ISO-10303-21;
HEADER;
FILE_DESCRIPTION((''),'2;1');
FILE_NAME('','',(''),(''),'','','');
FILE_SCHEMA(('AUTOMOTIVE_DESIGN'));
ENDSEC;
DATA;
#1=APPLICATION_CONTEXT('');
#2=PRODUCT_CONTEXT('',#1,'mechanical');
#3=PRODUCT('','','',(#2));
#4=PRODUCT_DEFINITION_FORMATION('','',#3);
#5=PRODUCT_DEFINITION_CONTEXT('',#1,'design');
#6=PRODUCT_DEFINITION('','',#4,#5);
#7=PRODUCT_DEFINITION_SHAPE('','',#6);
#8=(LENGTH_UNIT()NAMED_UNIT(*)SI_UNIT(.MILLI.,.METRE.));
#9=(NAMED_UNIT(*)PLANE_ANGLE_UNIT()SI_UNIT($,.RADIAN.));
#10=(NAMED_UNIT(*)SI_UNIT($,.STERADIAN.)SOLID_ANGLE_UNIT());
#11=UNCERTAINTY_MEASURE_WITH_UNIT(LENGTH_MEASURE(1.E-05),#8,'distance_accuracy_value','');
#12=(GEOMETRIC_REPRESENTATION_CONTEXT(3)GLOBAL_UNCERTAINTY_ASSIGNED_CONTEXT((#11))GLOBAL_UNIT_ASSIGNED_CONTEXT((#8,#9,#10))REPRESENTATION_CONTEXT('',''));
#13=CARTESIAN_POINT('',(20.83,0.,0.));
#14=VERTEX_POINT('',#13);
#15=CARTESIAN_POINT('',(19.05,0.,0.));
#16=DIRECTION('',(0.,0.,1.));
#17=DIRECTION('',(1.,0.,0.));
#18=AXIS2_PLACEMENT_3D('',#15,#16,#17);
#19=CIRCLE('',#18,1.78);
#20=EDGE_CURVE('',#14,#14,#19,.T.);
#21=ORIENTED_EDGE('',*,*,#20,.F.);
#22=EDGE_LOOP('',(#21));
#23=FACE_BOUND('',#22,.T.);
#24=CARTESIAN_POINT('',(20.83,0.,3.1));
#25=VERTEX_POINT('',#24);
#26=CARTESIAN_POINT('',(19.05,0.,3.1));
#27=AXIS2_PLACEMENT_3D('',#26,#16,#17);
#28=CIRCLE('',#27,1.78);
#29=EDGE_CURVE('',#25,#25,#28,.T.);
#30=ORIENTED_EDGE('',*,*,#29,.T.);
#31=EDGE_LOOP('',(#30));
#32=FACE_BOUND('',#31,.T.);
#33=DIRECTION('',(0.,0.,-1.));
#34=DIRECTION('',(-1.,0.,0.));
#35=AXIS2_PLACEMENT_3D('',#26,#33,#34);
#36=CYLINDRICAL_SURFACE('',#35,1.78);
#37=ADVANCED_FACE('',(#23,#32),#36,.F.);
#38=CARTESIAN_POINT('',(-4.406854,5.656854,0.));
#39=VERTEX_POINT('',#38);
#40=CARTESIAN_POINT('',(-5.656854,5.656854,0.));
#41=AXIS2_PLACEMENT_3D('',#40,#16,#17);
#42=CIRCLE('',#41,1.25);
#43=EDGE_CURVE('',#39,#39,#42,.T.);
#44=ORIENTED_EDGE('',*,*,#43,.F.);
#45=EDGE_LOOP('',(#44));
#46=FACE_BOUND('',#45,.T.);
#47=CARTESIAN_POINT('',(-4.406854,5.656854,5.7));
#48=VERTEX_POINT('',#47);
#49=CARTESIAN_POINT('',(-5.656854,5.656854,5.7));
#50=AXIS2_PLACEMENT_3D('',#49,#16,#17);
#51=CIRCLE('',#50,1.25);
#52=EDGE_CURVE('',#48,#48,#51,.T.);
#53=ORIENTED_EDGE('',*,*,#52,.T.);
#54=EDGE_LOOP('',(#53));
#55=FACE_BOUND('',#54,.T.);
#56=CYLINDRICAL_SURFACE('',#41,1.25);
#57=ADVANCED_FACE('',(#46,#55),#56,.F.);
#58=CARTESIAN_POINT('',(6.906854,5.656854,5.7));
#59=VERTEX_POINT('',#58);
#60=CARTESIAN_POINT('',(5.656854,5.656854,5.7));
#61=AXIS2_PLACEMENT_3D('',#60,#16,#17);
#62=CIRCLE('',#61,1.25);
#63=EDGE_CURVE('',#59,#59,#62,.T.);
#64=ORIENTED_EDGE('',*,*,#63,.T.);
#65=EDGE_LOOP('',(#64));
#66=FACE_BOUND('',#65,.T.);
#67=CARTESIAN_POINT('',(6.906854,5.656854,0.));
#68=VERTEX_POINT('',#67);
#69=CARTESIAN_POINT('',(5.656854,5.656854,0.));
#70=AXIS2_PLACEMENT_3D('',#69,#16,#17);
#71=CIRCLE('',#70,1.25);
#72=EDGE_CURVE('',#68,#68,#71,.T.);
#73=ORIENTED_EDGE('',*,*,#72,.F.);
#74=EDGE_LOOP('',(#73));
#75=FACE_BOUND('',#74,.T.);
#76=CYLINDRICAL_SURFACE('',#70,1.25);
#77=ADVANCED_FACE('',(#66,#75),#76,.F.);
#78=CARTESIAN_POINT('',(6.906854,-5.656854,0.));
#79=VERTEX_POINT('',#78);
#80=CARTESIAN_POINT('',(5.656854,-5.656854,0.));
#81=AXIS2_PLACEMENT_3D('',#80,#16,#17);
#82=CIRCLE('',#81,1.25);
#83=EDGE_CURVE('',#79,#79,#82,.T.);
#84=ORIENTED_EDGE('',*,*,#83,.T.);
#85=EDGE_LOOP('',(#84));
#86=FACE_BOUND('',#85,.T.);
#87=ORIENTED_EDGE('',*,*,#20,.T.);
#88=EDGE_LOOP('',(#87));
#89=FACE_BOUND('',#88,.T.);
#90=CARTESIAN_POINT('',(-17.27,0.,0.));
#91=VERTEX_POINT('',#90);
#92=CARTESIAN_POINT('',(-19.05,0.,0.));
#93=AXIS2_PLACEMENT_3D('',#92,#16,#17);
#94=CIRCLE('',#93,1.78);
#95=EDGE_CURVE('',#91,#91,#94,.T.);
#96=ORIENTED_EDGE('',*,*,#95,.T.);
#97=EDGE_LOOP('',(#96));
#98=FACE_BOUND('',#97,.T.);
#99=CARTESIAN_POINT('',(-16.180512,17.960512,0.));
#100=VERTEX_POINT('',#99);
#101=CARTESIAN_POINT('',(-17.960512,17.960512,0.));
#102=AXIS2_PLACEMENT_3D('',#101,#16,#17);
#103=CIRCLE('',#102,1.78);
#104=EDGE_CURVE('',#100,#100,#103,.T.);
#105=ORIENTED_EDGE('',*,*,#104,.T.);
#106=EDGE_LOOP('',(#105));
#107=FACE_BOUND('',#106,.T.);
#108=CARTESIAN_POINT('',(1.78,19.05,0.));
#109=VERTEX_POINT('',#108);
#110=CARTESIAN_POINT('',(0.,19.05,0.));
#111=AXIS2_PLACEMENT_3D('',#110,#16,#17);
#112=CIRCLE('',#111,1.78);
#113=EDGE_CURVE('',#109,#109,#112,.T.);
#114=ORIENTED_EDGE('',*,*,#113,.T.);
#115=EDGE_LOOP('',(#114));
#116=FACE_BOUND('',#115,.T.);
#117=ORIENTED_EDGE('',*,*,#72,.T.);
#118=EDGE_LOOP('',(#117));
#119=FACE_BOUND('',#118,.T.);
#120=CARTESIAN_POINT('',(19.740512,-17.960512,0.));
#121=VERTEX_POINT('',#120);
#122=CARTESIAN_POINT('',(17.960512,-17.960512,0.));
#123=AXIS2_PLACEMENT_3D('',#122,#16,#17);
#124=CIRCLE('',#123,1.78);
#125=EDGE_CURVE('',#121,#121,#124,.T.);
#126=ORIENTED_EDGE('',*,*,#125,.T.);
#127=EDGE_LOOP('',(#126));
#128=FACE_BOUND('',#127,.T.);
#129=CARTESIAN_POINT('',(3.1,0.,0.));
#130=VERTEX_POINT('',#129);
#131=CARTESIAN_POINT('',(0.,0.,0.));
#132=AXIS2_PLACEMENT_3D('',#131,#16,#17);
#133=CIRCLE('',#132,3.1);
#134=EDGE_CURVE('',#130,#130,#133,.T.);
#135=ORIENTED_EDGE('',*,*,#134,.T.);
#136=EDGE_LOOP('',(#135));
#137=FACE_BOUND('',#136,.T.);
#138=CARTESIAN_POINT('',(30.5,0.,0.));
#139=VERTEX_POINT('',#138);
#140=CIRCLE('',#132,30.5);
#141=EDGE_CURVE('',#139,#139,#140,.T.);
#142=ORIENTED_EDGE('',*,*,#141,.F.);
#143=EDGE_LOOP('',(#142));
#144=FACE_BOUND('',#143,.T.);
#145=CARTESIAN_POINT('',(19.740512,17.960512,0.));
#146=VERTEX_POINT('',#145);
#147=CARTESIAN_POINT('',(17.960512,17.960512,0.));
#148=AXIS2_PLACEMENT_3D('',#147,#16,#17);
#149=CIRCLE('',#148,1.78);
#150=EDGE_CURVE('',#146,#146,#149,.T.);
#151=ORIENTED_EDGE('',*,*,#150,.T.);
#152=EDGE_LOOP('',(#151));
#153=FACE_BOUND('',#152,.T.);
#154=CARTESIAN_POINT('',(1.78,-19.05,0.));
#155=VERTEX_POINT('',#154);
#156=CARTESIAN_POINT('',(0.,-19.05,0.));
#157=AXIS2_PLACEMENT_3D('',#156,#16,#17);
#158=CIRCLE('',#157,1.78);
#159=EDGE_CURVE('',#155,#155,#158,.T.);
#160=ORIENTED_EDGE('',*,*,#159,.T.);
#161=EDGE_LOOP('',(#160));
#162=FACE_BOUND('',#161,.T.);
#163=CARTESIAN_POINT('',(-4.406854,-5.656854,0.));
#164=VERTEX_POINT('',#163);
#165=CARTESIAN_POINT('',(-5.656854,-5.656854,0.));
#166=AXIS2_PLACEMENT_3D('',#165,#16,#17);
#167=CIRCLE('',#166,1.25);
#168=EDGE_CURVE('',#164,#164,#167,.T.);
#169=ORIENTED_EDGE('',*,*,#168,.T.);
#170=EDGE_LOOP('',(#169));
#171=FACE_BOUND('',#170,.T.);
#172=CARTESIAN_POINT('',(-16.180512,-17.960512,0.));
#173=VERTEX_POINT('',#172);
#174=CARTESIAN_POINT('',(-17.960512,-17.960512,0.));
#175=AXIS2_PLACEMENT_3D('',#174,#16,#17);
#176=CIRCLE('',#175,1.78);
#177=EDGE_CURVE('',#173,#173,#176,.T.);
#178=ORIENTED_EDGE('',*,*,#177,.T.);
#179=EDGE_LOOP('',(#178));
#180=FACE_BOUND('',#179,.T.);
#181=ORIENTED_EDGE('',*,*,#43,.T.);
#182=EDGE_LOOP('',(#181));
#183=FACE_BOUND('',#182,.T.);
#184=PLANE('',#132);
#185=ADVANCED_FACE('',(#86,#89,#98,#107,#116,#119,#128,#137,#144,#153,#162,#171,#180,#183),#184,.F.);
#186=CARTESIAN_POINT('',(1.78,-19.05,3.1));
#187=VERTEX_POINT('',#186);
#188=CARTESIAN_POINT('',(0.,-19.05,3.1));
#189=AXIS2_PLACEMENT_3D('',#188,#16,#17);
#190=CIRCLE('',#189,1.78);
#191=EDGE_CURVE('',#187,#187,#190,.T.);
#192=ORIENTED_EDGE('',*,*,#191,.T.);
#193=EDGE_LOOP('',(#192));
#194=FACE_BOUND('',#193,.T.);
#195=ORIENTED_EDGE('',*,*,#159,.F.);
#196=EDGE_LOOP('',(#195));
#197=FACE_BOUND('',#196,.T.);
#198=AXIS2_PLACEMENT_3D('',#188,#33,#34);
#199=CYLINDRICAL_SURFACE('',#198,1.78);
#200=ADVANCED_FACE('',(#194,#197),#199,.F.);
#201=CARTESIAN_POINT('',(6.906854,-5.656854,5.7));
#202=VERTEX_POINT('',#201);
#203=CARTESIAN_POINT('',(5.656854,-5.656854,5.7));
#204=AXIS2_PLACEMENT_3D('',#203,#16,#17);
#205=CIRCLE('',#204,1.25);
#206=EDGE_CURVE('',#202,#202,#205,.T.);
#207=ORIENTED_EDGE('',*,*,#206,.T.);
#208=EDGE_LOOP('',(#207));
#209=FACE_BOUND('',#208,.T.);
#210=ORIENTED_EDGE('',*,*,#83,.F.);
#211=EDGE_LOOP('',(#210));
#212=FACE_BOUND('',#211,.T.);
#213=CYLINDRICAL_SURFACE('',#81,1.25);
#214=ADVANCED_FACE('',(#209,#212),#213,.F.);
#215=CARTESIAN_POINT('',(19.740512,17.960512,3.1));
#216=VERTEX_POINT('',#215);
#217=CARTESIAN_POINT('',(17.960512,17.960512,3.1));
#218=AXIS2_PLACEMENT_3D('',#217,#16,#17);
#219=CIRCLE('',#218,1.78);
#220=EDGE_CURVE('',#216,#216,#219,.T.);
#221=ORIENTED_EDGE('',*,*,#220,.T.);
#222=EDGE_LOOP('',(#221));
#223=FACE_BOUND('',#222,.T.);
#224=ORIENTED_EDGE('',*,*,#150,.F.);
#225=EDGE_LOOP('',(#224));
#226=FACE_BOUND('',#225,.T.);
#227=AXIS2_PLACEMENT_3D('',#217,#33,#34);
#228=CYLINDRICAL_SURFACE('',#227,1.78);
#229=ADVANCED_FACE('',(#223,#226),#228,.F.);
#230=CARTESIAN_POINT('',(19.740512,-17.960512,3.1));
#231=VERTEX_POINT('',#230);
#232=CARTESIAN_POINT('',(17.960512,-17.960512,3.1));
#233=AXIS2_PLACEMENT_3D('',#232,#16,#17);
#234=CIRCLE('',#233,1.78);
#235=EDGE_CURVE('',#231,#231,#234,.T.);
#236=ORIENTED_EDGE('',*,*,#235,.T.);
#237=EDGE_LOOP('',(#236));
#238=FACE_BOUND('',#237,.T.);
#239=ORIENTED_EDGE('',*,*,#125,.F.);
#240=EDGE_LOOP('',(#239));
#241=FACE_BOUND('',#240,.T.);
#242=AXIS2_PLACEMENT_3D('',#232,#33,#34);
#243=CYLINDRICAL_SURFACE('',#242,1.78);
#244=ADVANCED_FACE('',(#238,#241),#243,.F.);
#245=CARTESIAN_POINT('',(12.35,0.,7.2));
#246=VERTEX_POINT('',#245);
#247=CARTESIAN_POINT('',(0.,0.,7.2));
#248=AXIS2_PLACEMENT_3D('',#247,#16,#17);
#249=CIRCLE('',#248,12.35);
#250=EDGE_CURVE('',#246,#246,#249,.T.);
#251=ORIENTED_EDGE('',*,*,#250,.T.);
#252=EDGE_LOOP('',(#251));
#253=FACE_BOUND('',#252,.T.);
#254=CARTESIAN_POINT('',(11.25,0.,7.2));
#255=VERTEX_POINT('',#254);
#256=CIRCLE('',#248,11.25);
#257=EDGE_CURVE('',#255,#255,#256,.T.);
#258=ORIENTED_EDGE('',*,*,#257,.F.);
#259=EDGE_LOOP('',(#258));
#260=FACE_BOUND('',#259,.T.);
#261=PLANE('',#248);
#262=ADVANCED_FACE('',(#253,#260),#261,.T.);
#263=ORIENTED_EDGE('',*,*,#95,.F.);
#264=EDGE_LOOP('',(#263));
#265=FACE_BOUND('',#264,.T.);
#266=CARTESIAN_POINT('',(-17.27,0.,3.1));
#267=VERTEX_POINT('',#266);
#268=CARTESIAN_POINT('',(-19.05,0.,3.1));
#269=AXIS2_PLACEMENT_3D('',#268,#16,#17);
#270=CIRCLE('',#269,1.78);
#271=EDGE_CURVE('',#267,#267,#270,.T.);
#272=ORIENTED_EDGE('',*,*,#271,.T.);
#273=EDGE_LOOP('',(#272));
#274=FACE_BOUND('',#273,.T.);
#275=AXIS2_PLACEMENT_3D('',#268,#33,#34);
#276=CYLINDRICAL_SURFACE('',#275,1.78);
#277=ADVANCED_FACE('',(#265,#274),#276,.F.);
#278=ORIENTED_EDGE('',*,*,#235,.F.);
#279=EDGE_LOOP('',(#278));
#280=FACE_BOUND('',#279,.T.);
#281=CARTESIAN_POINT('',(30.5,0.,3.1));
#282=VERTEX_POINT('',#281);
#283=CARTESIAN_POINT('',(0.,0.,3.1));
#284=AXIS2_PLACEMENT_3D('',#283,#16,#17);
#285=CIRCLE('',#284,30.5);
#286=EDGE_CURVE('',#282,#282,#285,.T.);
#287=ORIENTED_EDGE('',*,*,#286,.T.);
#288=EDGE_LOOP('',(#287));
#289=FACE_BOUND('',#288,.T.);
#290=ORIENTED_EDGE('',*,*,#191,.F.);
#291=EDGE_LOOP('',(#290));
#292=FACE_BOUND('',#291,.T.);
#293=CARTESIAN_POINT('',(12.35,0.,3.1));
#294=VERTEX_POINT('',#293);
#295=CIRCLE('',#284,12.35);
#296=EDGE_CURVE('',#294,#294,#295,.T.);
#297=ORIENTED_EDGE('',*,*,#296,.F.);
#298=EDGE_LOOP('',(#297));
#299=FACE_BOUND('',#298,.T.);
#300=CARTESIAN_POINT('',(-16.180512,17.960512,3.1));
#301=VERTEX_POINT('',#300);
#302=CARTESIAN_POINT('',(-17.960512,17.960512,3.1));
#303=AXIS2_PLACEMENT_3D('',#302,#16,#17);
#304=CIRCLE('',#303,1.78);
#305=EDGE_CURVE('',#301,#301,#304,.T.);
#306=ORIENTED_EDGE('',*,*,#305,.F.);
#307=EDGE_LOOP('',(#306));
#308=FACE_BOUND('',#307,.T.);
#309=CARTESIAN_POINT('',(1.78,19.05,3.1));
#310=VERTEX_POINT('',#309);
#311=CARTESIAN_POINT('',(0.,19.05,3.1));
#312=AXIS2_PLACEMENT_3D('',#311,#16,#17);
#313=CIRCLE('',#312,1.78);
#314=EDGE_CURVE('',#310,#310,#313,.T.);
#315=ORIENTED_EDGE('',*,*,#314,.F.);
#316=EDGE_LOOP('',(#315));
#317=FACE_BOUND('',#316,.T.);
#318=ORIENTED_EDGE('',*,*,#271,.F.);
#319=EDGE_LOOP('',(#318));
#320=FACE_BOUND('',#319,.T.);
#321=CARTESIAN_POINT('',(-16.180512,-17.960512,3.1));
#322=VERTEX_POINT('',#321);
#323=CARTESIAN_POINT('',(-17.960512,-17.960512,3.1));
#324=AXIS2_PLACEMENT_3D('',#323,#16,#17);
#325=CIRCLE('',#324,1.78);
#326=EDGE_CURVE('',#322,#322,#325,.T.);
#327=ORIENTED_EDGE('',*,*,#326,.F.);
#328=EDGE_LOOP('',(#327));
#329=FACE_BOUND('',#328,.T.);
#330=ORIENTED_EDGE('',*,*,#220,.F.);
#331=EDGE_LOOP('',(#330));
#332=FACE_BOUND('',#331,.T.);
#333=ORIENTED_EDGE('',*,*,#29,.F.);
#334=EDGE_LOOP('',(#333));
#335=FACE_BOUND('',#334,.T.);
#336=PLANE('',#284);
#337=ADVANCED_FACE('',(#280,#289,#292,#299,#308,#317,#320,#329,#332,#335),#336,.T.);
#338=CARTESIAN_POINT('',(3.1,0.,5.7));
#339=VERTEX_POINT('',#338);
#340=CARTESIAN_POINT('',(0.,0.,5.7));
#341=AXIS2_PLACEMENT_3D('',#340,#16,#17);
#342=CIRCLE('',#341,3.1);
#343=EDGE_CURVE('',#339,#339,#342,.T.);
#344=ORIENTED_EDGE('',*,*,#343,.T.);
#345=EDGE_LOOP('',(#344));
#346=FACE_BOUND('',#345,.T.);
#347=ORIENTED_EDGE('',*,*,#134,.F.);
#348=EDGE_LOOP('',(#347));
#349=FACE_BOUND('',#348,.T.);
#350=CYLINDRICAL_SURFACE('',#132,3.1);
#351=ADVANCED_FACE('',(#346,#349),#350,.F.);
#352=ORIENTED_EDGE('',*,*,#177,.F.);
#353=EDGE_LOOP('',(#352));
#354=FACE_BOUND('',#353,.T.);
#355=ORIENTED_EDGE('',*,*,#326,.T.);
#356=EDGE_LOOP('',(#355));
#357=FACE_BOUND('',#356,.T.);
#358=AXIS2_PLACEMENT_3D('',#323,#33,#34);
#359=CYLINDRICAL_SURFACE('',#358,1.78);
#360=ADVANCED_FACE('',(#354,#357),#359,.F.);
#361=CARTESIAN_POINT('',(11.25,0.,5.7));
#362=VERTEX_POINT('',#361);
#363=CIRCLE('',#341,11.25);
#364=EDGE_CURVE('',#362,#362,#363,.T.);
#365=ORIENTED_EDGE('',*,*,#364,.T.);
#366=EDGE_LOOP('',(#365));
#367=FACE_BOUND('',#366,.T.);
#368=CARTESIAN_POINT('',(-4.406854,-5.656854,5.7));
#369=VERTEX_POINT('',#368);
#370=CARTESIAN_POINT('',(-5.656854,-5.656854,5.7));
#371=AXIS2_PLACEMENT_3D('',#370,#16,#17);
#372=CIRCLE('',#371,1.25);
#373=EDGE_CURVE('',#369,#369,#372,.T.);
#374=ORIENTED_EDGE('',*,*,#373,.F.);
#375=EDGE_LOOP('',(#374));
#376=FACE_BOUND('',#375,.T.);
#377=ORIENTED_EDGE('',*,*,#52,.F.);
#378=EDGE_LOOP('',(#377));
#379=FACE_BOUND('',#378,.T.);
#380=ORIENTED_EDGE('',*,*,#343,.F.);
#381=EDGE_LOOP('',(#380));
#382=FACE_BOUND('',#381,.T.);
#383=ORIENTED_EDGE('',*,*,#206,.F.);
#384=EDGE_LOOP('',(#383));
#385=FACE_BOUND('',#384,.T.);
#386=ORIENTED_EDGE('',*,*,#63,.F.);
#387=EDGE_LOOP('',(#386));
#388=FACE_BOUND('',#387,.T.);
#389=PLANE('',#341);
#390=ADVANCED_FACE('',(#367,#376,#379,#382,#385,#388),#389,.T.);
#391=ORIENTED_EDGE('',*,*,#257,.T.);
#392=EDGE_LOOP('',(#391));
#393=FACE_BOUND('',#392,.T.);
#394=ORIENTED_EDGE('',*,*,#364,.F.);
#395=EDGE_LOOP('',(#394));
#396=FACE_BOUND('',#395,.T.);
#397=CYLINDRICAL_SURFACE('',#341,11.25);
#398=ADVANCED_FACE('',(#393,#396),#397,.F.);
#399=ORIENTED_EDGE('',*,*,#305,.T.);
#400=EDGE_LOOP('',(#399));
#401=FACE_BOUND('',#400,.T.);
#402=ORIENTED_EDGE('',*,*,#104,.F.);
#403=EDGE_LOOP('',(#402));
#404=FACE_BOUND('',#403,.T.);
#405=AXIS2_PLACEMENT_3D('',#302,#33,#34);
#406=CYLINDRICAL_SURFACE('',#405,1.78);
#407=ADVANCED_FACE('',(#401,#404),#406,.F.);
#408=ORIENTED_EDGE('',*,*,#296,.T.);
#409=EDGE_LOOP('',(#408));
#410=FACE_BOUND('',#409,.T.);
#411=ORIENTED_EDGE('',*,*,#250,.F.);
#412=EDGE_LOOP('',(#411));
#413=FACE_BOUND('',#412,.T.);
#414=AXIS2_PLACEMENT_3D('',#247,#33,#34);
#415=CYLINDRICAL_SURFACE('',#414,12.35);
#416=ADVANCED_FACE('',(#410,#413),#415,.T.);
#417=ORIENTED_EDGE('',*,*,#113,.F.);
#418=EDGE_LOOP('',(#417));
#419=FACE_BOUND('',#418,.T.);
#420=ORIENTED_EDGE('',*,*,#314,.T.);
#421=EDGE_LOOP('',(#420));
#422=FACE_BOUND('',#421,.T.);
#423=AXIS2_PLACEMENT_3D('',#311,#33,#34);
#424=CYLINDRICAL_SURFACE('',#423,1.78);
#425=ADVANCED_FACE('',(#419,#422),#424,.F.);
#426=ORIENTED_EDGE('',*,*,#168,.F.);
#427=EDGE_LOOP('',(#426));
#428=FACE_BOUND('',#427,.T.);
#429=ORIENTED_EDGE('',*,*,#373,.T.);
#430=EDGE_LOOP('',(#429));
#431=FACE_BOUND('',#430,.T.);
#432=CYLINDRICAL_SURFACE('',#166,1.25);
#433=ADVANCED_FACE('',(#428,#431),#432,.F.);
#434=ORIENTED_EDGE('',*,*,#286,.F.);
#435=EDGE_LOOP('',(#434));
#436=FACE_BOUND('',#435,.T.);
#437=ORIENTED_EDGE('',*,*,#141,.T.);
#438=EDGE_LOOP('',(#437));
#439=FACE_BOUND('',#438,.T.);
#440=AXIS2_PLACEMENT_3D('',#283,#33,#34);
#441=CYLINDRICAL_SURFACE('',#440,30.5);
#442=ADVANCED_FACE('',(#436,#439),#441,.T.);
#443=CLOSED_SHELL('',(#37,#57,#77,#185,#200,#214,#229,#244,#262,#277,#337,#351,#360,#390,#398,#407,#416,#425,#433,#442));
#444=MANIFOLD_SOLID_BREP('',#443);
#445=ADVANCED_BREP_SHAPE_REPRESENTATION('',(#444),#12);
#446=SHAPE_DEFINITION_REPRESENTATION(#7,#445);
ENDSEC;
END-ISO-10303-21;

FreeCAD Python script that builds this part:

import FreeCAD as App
import Part
import Sketcher

V = App.Vector
Q = App.Units.Quantity

doc = App.newDocument("Part")
body = doc.addObject("PartDesign::Body", "Body")

sketch1 = body.newObject("Sketcher::SketchObject", "Sketch")
sketch1.AttachmentSupport = (doc.getObject("XY_Plane"), [""])
sketch1.MapMode = "FlatFace"
sketch1.addGeometry([
    Part.Circle(V(0, 0, 0), V(0, 0, 1), 30.5),
    Part.Circle(V(-18, -18, 0), V(0, 0, 1), 1.8),
    Part.Circle(V(0, -19.1, 0), V(0, 0, 1), 1.8),
    Part.Circle(V(18, -18, 0), V(0, 0, 1), 1.8),
    Part.Circle(V(-19.1, 0, 0), V(0, 0, 1), 1.8),
    Part.Circle(V(-18, 18, 0), V(0, 0, 1), 1.8),
    Part.Circle(V(19.1, 0, 0), V(0, 0, 1), 1.8),
    Part.Circle(V(0, 19.1, 0), V(0, 0, 1), 1.8),
    Part.Circle(V(18, 18, 0), V(0, 0, 1), 1.8),
], False)
sketch1.addConstraint([
    Sketcher.Constraint("Coincident", 0, 3, -1, 1),
    Sketcher.Constraint("Equal", 1, 2),
    Sketcher.Constraint("Equal", 2, 3),
    Sketcher.Constraint("Equal", 3, 4),
    Sketcher.Constraint("Equal", 4, 5),
    Sketcher.Constraint("Equal", 5, 6),
    Sketcher.Constraint("Equal", 6, 7),
    Sketcher.Constraint("Equal", 7, 8),
    Sketcher.Constraint("Symmetric", 3, 3, 5, 3, -1, 1),
    Sketcher.Constraint("Symmetric", 4, 3, 6, 3, -1, 1),
    Sketcher.Constraint("Symmetric", 2, 3, 7, 3, -1, 1),
    Sketcher.Constraint("Symmetric", 1, 3, 8, 3, -1, 1),
    Sketcher.Constraint("Symmetric", 1, 3, 3, 3, -2),
    Sketcher.Constraint("PointOnObject", 2, 3, -2),
    Sketcher.Constraint("PointOnObject", 4, 3, -1),
    Sketcher.Constraint("Diameter", 0, Q("61 mm")),
    Sketcher.Constraint("Diameter", 1, Q("3.56 mm")),
    Sketcher.Constraint("DistanceX", 4, 3, 6, 3, Q("38.1 mm")),
    Sketcher.Constraint("DistanceY", 2, 3, 7, 3, Q("38.1 mm")),
    Sketcher.Constraint("DistanceX", 1, 3, -1, 1, Q("17.960512 mm")),
    Sketcher.Constraint("DistanceY", 1, 3, -1, 1, Q("17.960512 mm")),
])
pad1 = body.newObject("PartDesign::Pad", "Pad")
pad1.Profile = sketch1
pad1.Length = 3.1

sketch2 = body.newObject("Sketcher::SketchObject", "Sketch001")
sketch2.AttachmentSupport = (doc.getObject("XY_Plane"), [""])
sketch2.MapMode = "FlatFace"
sketch2.AttachmentOffset = App.Placement(V(0, 0, 3.1), App.Rotation())
sketch2.addGeometry(Part.Circle(V(0, 0, 0), V(0, 0, 1), 12), False)
sketch2.addConstraint([
    Sketcher.Constraint("Coincident", 0, 3, -1, 1),
    Sketcher.Constraint("Diameter", 0, Q("24.7 mm")),
])
pad2 = body.newObject("PartDesign::Pad", "Pad001")
pad2.Profile = sketch2
pad2.Length = 4.1

sketch3 = body.newObject("Sketcher::SketchObject", "Sketch002")
sketch3.AttachmentSupport = (doc.getObject("XY_Plane"), [""])
sketch3.MapMode = "FlatFace"
sketch3.AttachmentOffset = App.Placement(V(0, 0, 7.2), App.Rotation())
sketch3.addGeometry(Part.Circle(V(0, 0, 0), V(0, 0, 1), 11), False)
sketch3.addConstraint([
    Sketcher.Constraint("Coincident", 0, 3, -1, 1),
    Sketcher.Constraint("Diameter", 0, Q("22.5 mm")),
])
pocket1 = body.newObject("PartDesign::Pocket", "Pocket")
pocket1.Profile = sketch3
pocket1.Length = 1.5

sketch4 = body.newObject("Sketcher::SketchObject", "Sketch003")
sketch4.AttachmentSupport = (doc.getObject("XY_Plane"), [""])
sketch4.MapMode = "FlatFace"
sketch4.AttachmentOffset = App.Placement(V(0, 0, 5.7), App.Rotation())
sketch4.addGeometry([
    Part.Circle(V(5.7, 5.7, 0), V(0, 0, 1), 1.2),
    Part.Circle(V(5.7, -5.7, 0), V(0, 0, 1), 1.2),
    Part.Circle(V(-5.7, -5.7, 0), V(0, 0, 1), 1.2),
    Part.Circle(V(-5.7, 5.7, 0), V(0, 0, 1), 1.2),
    Part.Circle(V(0, 0, 0), V(0, 0, 1), 3.1),
], False)
sketch4.addConstraint([
    Sketcher.Constraint("Coincident", 4, 3, -1, 1),
    Sketcher.Constraint("Equal", 0, 1),
    Sketcher.Constraint("Equal", 1, 2),
    Sketcher.Constraint("Equal", 2, 3),
    Sketcher.Constraint("Symmetric", 0, 3, 2, 3, -1, 1),
    Sketcher.Constraint("Symmetric", 1, 3, 3, 3, -1, 1),
    Sketcher.Constraint("Symmetric", 1, 3, 2, 3, -2),
    Sketcher.Constraint("Diameter", 0, Q("2.5 mm")),
    Sketcher.Constraint("Diameter", 4, Q("6.2 mm")),
    Sketcher.Constraint("DistanceY", 1, 3, 0, 3, Q("11.313708 mm")),
    Sketcher.Constraint("DistanceX", 2, 3, 1, 3, Q("11.313708 mm")),
])
pocket2 = body.newObject("PartDesign::Pocket", "Pocket001")
pocket2.Profile = sketch4
pocket2.Type = "ThroughAll"

doc.recompute()
